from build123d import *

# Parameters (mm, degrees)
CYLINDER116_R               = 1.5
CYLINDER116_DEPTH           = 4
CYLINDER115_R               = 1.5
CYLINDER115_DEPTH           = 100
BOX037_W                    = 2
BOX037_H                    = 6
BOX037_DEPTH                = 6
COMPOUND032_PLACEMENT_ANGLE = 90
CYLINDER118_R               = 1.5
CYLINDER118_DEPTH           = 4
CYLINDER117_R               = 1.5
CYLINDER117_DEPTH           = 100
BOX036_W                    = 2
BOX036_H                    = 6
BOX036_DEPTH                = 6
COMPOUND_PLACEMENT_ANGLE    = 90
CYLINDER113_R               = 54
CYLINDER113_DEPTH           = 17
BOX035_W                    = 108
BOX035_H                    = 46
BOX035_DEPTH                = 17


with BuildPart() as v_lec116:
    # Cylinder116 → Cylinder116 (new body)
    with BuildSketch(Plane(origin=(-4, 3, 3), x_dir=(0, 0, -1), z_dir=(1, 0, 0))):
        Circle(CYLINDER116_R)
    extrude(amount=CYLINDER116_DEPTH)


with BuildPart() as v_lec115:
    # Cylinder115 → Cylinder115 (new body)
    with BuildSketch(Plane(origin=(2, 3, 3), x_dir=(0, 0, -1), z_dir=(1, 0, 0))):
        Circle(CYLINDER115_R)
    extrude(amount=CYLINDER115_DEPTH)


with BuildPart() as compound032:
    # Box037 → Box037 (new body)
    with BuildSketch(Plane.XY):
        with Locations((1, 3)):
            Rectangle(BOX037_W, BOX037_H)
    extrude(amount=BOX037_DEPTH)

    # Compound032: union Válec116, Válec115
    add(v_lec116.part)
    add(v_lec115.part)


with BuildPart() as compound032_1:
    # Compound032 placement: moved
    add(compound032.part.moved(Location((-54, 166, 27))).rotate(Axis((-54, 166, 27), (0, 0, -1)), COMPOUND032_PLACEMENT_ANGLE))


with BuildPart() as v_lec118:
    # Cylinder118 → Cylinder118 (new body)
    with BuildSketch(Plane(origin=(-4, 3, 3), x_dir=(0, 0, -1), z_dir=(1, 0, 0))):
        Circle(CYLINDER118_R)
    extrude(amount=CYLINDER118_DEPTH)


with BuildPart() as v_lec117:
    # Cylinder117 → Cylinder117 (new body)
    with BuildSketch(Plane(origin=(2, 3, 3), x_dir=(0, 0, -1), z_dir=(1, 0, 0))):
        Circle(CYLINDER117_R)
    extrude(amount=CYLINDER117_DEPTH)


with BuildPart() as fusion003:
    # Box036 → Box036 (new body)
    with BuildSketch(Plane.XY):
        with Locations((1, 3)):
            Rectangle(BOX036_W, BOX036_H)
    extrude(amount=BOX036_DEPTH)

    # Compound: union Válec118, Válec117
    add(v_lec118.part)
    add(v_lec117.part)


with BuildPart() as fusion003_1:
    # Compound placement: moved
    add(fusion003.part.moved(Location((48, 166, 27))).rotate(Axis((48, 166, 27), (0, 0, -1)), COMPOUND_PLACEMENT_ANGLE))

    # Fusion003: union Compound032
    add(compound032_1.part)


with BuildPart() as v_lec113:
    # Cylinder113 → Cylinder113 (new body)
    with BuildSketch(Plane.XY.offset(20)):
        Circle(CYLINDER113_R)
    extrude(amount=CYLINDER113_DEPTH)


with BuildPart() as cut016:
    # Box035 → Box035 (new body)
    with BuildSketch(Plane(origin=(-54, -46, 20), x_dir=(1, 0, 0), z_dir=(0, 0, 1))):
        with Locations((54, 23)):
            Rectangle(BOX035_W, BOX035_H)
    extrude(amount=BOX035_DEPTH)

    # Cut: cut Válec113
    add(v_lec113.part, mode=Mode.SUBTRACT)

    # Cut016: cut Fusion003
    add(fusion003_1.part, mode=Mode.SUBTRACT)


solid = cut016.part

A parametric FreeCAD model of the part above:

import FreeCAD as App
import Part
import Sketcher

doc = App.newDocument("Part")
body = doc.addObject("PartDesign::Body", "Body")

# Sketch on YZ plane
sketch1 = doc.addObject("Sketcher::SketchObject", "Sketch")
body.addObject(sketch1)
sketch1.AttachmentSupport = (doc.YZ_Plane, [""])
sketch1.MapMode = "FlatFace"
sketch1.AttachmentOffset = App.Placement(App.Vector(0, 0, -4), App.Rotation())
sketch1.addGeometry(Part.Circle(App.Vector(3, 3, 0), App.Vector(0, 0, 1), 1.5), False)
sketch1.addConstraint([
    Sketcher.Constraint("Diameter", 0, 3.0),
    Sketcher.Constraint("DistanceX", -1, 1, 0, 3, 3.0),
    Sketcher.Constraint("DistanceY", -1, 1, 0, 3, 3.0),
])
pad1 = doc.addObject("PartDesign::Pad", "Pad")
body.addObject(pad1)
pad1.Profile = sketch1
pad1.Length = 4
body2 = doc.addObject("PartDesign::Body", "Body001")

# Sketch on YZ plane
sketch2 = doc.addObject("Sketcher::SketchObject", "Sketch001")
body2.addObject(sketch2)
sketch2.AttachmentSupport = (doc.getObject("YZ_Plane001"), [""])
sketch2.MapMode = "FlatFace"
sketch2.AttachmentOffset = App.Placement(App.Vector(0, 0, 2), App.Rotation())
sketch2.addGeometry(Part.Circle(App.Vector(3, 3, 0), App.Vector(0, 0, 1), 1.5), False)
sketch2.addConstraint([
    Sketcher.Constraint("Diameter", 0, 3.0),
    Sketcher.Constraint("DistanceX", -1, 1, 0, 3, 3.0),
    Sketcher.Constraint("DistanceY", -1, 1, 0, 3, 3.0),
])
pad2 = doc.addObject("PartDesign::Pad", "Pad001")
body2.addObject(pad2)
pad2.Profile = sketch2
pad2.Length = 100
body3 = doc.addObject("PartDesign::Body", "Body002")

# Sketch on XY plane
sketch3 = doc.addObject("Sketcher::SketchObject", "Sketch002")
body3.addObject(sketch3)
sketch3.AttachmentSupport = (doc.getObject("XY_Plane002"), [""])
sketch3.MapMode = "FlatFace"
sketch3.addGeometry([
    Part.LineSegment(App.Vector(0, 6, 0), App.Vector(0, 0, 0)),
    Part.LineSegment(App.Vector(0, 0, 0), App.Vector(2, 0, 0)),
    Part.LineSegment(App.Vector(2, 0, 0), App.Vector(2, 6, 0)),
    Part.LineSegment(App.Vector(2, 6, 0), App.Vector(0, 6, 0)),
], False)
sketch3.addConstraint([
    Sketcher.Constraint("Coincident", 0, 2, 1, 1),
    Sketcher.Constraint("Coincident", 1, 2, 2, 1),
    Sketcher.Constraint("Coincident", 2, 2, 3, 1),
    Sketcher.Constraint("Coincident", 3, 2, 0, 1),
    Sketcher.Constraint("Vertical", 0),
    Sketcher.Constraint("Horizontal", 1),
    Sketcher.Constraint("Vertical", 2),
    Sketcher.Constraint("Horizontal", 3),
    Sketcher.Constraint("Coincident", 0, 2, -1, 1),
    Sketcher.Constraint("DistanceX", 1, 1, 1, 2, 2.0),
    Sketcher.Constraint("DistanceY", 0, 2, 0, 1, 6.0),
])
pad3 = doc.addObject("PartDesign::Pad", "Pad002")
body3.addObject(pad3)
pad3.Profile = sketch3
pad3.Length = 6
doc.recompute()

boolean = doc.addObject("PartDesign::Boolean", "Boolean")
body3.addObject(boolean)
boolean.Type = "Fuse"
boolean.addObjects([body])
doc.recompute()

boolean2 = doc.addObject("PartDesign::Boolean", "Boolean001")
body3.addObject(boolean2)
boolean2.Type = "Fuse"
boolean2.addObjects([body2])
body4 = doc.addObject("PartDesign::Body", "Body003")
doc.recompute()

body3.Placement = App.Placement(App.Vector(-54, 166, 27), App.Rotation(App.Vector(0, 0, -1), 90))
boolean3 = doc.addObject("PartDesign::Boolean", "Boolean002")
body4.addObject(boolean3)
boolean3.Type = "Fuse"
boolean3.addObjects([body3])
body5 = doc.addObject("PartDesign::Body", "Body004")

# Sketch on YZ plane
sketch4 = doc.addObject("Sketcher::SketchObject", "Sketch003")
body5.addObject(sketch4)
sketch4.AttachmentSupport = (doc.getObject("YZ_Plane004"), [""])
sketch4.MapMode = "FlatFace"
sketch4.AttachmentOffset = App.Placement(App.Vector(0, 0, -4), App.Rotation())
sketch4.addGeometry(Part.Circle(App.Vector(3, 3, 0), App.Vector(0, 0, 1), 1.5), False)
sketch4.addConstraint([
    Sketcher.Constraint("Diameter", 0, 3.0),
    Sketcher.Constraint("DistanceX", -1, 1, 0, 3, 3.0),
    Sketcher.Constraint("DistanceY", -1, 1, 0, 3, 3.0),
])
pad4 = doc.addObject("PartDesign::Pad", "Pad003")
body5.addObject(pad4)
pad4.Profile = sketch4
pad4.Length = 4
body6 = doc.addObject("PartDesign::Body", "Body005")

# Sketch on YZ plane
sketch5 = doc.addObject("Sketcher::SketchObject", "Sketch004")
body6.addObject(sketch5)
sketch5.AttachmentSupport = (doc.getObject("YZ_Plane005"), [""])
sketch5.MapMode = "FlatFace"
sketch5.AttachmentOffset = App.Placement(App.Vector(0, 0, 2), App.Rotation())
sketch5.addGeometry(Part.Circle(App.Vector(3, 3, 0), App.Vector(0, 0, 1), 1.5), False)
sketch5.addConstraint([
    Sketcher.Constraint("Diameter", 0, 3.0),
    Sketcher.Constraint("DistanceX", -1, 1, 0, 3, 3.0),
    Sketcher.Constraint("DistanceY", -1, 1, 0, 3, 3.0),
])
pad5 = doc.addObject("PartDesign::Pad", "Pad004")
body6.addObject(pad5)
pad5.Profile = sketch5
pad5.Length = 100
body7 = doc.addObject("PartDesign::Body", "Body006")

# Sketch on XY plane
sketch6 = doc.addObject("Sketcher::SketchObject", "Sketch005")
body7.addObject(sketch6)
sketch6.AttachmentSupport = (doc.getObject("XY_Plane006"), [""])
sketch6.MapMode = "FlatFace"
sketch6.addGeometry([
    Part.LineSegment(App.Vector(0, 6, 0), App.Vector(0, 0, 0)),
    Part.LineSegment(App.Vector(0, 0, 0), App.Vector(2, 0, 0)),
    Part.LineSegment(App.Vector(2, 0, 0), App.Vector(2, 6, 0)),
    Part.LineSegment(App.Vector(2, 6, 0), App.Vector(0, 6, 0)),
], False)
sketch6.addConstraint([
    Sketcher.Constraint("Coincident", 0, 2, 1, 1),
    Sketcher.Constraint("Coincident", 1, 2, 2, 1),
    Sketcher.Constraint("Coincident", 2, 2, 3, 1),
    Sketcher.Constraint("Coincident", 3, 2, 0, 1),
    Sketcher.Constraint("Vertical", 0),
    Sketcher.Constraint("Horizontal", 1),
    Sketcher.Constraint("Vertical", 2),
    Sketcher.Constraint("Horizontal", 3),
    Sketcher.Constraint("Coincident", 0, 2, -1, 1),
    Sketcher.Constraint("DistanceX", 1, 1, 1, 2, 2.0),
    Sketcher.Constraint("DistanceY", 0, 2, 0, 1, 6.0),
])
pad6 = doc.addObject("PartDesign::Pad", "Pad005")
body7.addObject(pad6)
pad6.Profile = sketch6
pad6.Length = 6
doc.recompute()

boolean4 = doc.addObject("PartDesign::Boolean", "Boolean003")
body7.addObject(boolean4)
boolean4.Type = "Fuse"
boolean4.addObjects([body5])
doc.recompute()

boolean5 = doc.addObject("PartDesign::Boolean", "Boolean004")
body7.addObject(boolean5)
boolean5.Type = "Fuse"
boolean5.addObjects([body6])
body8 = doc.addObject("PartDesign::Body", "Body007")
body8.AllowCompound = True
doc.recompute()

body7.Placement = App.Placement(App.Vector(48, 166, 27), App.Rotation(App.Vector(0, 0, -1), 90))
boolean6 = doc.addObject("PartDesign::Boolean", "Boolean005")
body8.addObject(boolean6)
boolean6.Type = "Fuse"
boolean6.addObjects([body7])
doc.recompute()

boolean7 = doc.addObject("PartDesign::Boolean", "Boolean006")
body8.addObject(boolean7)
boolean7.Type = "Fuse"
boolean7.addObjects([body4])
body9 = doc.addObject("PartDesign::Body", "Body008")

# Sketch on XY plane
sketch7 = doc.addObject("Sketcher::SketchObject", "Sketch006")
body9.addObject(sketch7)
sketch7.AttachmentSupport = (doc.getObject("XY_Plane008"), [""])
sketch7.MapMode = "FlatFace"
sketch7.AttachmentOffset = App.Placement(App.Vector(0, 0, 20), App.Rotation())
sketch7.addGeometry(Part.Circle(App.Vector(0, 0, 0), App.Vector(0, 0, 1), 54), False)
sketch7.addConstraint([
    Sketcher.Constraint("Coincident", 0, 3, -1, 1),
    Sketcher.Constraint("Diameter", 0, 108.0),
])
pad7 = doc.addObject("PartDesign::Pad", "Pad006")
body9.addObject(pad7)
pad7.Profile = sketch7
pad7.Length = 17
body10 = doc.addObject("PartDesign::Body", "Body009")
body10.AllowCompound = True

# Sketch on XY plane
sketch8 = doc.addObject("Sketcher::SketchObject", "Sketch007")
body10.addObject(sketch8)
sketch8.AttachmentSupport = (doc.getObject("XY_Plane009"), [""])
sketch8.MapMode = "FlatFace"
sketch8.AttachmentOffset = App.Placement(App.Vector(0, 0, 20), App.Rotation())
sketch8.addGeometry([
    Part.LineSegment(App.Vector(-54, 0, 0), App.Vector(-54, -46, 0)),
    Part.LineSegment(App.Vector(-54, -46, 0), App.Vector(54, -46, 0)),
    Part.LineSegment(App.Vector(54, -46, 0), App.Vector(54, 0, 0)),
    Part.LineSegment(App.Vector(54, 0, 0), App.Vector(-54, 0, 0)),
], False)
sketch8.addConstraint([
    Sketcher.Constraint("Coincident", 0, 2, 1, 1),
    Sketcher.Constraint("Coincident", 1, 2, 2, 1),
    Sketcher.Constraint("Coincident", 2, 2, 3, 1),
    Sketcher.Constraint("Coincident", 3, 2, 0, 1),
    Sketcher.Constraint("Vertical", 0),
    Sketcher.Constraint("Horizontal", 1),
    Sketcher.Constraint("Vertical", 2),
    Sketcher.Constraint("Horizontal", 3),
    Sketcher.Constraint("Symmetric", 2, 2, 3, 2, -1, 1),
    Sketcher.Constraint("DistanceX", 1, 1, 1, 2, 108.0),
    Sketcher.Constraint("DistanceY", 0, 2, 0, 1, 46.0),
])
pad8 = doc.addObject("PartDesign::Pad", "Pad007")
body10.addObject(pad8)
pad8.Profile = sketch8
pad8.Length = 17
doc.recompute()

boolean8 = doc.addObject("PartDesign::Boolean", "Boolean007")
body10.addObject(boolean8)
boolean8.Type = "Cut"
boolean8.addObjects([body9])
doc.recompute()

boolean9 = doc.addObject("PartDesign::Boolean", "Boolean008")
body10.addObject(boolean9)
boolean9.Type = "Cut"
boolean9.addObjects([body8])

doc.recompute()
